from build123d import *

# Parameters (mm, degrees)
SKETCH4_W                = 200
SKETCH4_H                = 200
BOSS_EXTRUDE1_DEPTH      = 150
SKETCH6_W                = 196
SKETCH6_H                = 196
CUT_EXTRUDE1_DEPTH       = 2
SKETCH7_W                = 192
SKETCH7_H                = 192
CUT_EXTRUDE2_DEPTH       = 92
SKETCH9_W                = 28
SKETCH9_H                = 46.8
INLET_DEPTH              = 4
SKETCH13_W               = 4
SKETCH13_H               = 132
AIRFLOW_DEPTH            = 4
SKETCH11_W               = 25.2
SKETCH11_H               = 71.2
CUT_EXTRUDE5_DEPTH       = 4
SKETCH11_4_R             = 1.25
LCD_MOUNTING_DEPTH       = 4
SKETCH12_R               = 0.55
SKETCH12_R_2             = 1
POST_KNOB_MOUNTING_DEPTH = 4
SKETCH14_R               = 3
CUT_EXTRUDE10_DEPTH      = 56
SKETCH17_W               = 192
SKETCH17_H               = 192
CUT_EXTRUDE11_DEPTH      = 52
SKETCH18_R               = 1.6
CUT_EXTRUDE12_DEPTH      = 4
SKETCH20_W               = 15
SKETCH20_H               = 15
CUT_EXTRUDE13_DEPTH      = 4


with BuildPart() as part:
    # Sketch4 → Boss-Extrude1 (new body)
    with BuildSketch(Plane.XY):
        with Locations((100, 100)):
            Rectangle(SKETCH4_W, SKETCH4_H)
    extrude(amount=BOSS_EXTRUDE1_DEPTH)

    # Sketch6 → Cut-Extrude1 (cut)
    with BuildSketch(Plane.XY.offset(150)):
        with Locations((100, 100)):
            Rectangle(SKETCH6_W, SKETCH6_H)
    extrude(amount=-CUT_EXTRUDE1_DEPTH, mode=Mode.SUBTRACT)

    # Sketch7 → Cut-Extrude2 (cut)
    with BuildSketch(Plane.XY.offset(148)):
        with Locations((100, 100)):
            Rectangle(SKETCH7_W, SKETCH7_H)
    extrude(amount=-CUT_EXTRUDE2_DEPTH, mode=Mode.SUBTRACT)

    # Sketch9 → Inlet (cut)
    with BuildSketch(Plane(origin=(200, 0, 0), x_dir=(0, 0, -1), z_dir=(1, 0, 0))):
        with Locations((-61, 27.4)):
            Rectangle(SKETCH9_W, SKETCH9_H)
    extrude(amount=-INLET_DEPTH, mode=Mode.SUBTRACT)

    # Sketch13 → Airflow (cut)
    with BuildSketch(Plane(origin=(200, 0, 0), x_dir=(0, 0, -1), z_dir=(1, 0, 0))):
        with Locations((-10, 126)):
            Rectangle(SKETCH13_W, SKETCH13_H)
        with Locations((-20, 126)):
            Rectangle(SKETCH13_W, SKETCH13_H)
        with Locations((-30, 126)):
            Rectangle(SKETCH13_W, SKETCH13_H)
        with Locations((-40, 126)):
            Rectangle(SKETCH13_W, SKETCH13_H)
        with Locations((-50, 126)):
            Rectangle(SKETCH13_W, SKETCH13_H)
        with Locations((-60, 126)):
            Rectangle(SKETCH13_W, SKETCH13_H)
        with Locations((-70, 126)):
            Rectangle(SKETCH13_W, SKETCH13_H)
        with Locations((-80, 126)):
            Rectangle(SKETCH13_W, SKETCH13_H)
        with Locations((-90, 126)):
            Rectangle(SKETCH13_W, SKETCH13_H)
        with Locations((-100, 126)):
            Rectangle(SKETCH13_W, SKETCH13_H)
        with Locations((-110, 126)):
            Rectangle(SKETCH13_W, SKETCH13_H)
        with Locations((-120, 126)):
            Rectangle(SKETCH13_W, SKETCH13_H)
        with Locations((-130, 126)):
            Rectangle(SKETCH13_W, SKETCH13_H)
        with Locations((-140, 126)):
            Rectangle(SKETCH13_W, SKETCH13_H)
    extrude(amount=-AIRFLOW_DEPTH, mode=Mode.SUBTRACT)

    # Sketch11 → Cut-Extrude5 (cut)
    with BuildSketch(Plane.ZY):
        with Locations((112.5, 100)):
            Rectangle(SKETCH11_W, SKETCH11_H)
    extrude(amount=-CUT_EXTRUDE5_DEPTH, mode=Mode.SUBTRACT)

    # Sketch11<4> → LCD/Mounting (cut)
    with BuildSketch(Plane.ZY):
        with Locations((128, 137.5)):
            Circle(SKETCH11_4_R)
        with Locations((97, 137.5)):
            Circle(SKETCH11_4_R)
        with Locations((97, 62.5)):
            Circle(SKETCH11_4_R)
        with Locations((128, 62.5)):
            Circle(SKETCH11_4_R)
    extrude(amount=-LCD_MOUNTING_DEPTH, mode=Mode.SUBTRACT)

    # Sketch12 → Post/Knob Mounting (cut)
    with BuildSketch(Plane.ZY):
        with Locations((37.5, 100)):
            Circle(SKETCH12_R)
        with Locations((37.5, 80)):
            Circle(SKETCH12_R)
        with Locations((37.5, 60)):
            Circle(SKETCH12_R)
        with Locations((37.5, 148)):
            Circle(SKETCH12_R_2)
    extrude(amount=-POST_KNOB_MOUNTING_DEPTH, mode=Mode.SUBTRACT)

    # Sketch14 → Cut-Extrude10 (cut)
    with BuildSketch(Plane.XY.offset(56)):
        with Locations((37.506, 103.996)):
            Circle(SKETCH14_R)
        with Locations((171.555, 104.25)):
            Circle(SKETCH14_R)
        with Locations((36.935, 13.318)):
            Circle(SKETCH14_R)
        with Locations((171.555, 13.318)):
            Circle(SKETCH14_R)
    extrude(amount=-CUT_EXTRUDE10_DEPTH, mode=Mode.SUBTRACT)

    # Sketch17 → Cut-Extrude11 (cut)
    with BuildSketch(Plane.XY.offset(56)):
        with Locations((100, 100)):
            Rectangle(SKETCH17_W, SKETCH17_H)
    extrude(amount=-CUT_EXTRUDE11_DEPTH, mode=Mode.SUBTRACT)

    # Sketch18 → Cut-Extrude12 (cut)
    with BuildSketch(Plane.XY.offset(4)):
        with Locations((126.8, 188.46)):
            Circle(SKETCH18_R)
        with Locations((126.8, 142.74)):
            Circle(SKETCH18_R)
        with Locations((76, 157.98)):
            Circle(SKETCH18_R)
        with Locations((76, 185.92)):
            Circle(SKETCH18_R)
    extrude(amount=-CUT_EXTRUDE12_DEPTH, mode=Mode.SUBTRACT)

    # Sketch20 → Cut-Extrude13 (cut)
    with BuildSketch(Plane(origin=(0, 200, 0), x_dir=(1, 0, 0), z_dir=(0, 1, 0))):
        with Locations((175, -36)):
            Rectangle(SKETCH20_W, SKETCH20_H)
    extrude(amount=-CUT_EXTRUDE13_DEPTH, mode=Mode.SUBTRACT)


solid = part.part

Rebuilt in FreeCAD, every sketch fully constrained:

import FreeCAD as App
import Part
import Sketcher

V = App.Vector
Q = App.Units.Quantity


def add_polygon(sketch, points):
    """Adds a closed chain of lines whose ends are joined by coincident constraints."""
    first, n = sketch.GeometryCount, len(points)
    for a, b in zip(points, points[1:] + points[:1]):
        sketch.addGeometry(Part.LineSegment(App.Vector(*a, 0), App.Vector(*b, 0)), False)
    for i in range(n):
        sketch.addConstraint(Sketcher.Constraint("Coincident", first + i, 2, first + (i + 1) % n, 1))

doc = App.newDocument("Part")
body = doc.addObject("PartDesign::Body", "Body")

# Sketch on XY plane
sketch1 = body.newObject("Sketcher::SketchObject", "Sketch")
sketch1.AttachmentSupport = (doc.getObject("XY_Plane"), [""])
sketch1.MapMode = "FlatFace"
add_polygon(sketch1, [(0, 200), (0, 0), (200, 0), (200, 200)])  # lines 0-3
sketch1.addConstraint([
    Sketcher.Constraint("Vertical", 0),
    Sketcher.Constraint("Horizontal", 1),
    Sketcher.Constraint("Vertical", 2),
    Sketcher.Constraint("Horizontal", 3),
    Sketcher.Constraint("Coincident", 0, 2, -1, 1),
    Sketcher.Constraint("Equal", 3, 0),
    Sketcher.Constraint("DistanceX", 1, 1, 1, 2, Q("200 mm")),
])
pad1 = body.newObject("PartDesign::Pad", "Pad")
pad1.Profile = sketch1
pad1.Length = 150

# Sketch on XY plane
sketch2 = body.newObject("Sketcher::SketchObject", "Sketch001")
sketch2.AttachmentSupport = (doc.getObject("XY_Plane"), [""])
sketch2.MapMode = "FlatFace"
sketch2.AttachmentOffset = App.Placement(V(0, 0, 150), App.Rotation())
add_polygon(sketch2, [(2, 198), (2, 2), (198, 2), (198, 198)])  # lines 0-3
sketch2.addConstraint([
    Sketcher.Constraint("Vertical", 0),
    Sketcher.Constraint("Horizontal", 1),
    Sketcher.Constraint("Vertical", 2),
    Sketcher.Constraint("Horizontal", 3),
    Sketcher.Constraint("Equal", 3, 0),
    Sketcher.Constraint("DistanceX", 1, 1, 1, 2, Q("196 mm")),
    Sketcher.Constraint("DistanceX", -1, 1, 0, 2, Q("2 mm")),
    Sketcher.Constraint("DistanceY", -1, 1, 0, 2, Q("2 mm")),
])
pocket1 = body.newObject("PartDesign::Pocket", "Pocket")
pocket1.Profile = sketch2
pocket1.Length = 2

# Sketch on XY plane
sketch3 = body.newObject("Sketcher::SketchObject", "Sketch002")
sketch3.AttachmentSupport = (doc.getObject("XY_Plane"), [""])
sketch3.MapMode = "FlatFace"
sketch3.AttachmentOffset = App.Placement(V(0, 0, 148), App.Rotation())
add_polygon(sketch3, [(4, 196), (4, 4), (196, 4), (196, 196)])  # lines 0-3
sketch3.addConstraint([
    Sketcher.Constraint("Vertical", 0),
    Sketcher.Constraint("Horizontal", 1),
    Sketcher.Constraint("Vertical", 2),
    Sketcher.Constraint("Horizontal", 3),
    Sketcher.Constraint("Equal", 3, 0),
    Sketcher.Constraint("DistanceX", 1, 1, 1, 2, Q("192 mm")),
    Sketcher.Constraint("DistanceX", -1, 1, 0, 2, Q("4 mm")),
    Sketcher.Constraint("DistanceY", -1, 1, 0, 2, Q("4 mm")),
])
pocket2 = body.newObject("PartDesign::Pocket", "Pocket001")
pocket2.Profile = sketch3
pocket2.Length = 92

# Sketch on YZ plane
sketch4 = body.newObject("Sketcher::SketchObject", "Sketch003")
sketch4.AttachmentSupport = (doc.getObject("YZ_Plane"), [""])
sketch4.MapMode = "FlatFace"
sketch4.AttachmentOffset = App.Placement(V(0, 0, 200), App.Rotation())
add_polygon(sketch4, [(50.8, 75), (4, 75), (4, 47), (50.8, 47)])  # lines 0-3
sketch4.addConstraint([
    Sketcher.Constraint("Horizontal", 0),
    Sketcher.Constraint("Vertical", 1),
    Sketcher.Constraint("Horizontal", 2),
    Sketcher.Constraint("Vertical", 3),
    Sketcher.Constraint("DistanceY", 1, 2, 1, 1, Q("28 mm")),
    Sketcher.Constraint("DistanceX", 0, 2, 0, 1, Q("46.8 mm")),
    Sketcher.Constraint("DistanceX", -1, 1, 0, 2, Q("4 mm")),
    Sketcher.Constraint("DistanceY", -1, 1, 0, 2, Q("75 mm")),
])
pocket3 = body.newObject("PartDesign::Pocket", "Pocket002")
pocket3.Profile = sketch4
pocket3.Length = 4

# Sketch on YZ plane
sketch5 = body.newObject("Sketcher::SketchObject", "Sketch004")
sketch5.AttachmentSupport = (doc.getObject("YZ_Plane"), [""])
sketch5.MapMode = "FlatFace"
sketch5.AttachmentOffset = App.Placement(V(0, 0, 200), App.Rotation())
add_polygon(sketch5, [(192, 12), (60, 12), (60, 8), (192, 8)])  # lines 0-3
add_polygon(sketch5, [(192, 22), (60, 22), (60, 18), (192, 18)])  # lines 4-7
add_polygon(sketch5, [(192, 32), (60, 32), (60, 28), (192, 28)])  # lines 8-11
add_polygon(sketch5, [(192, 42), (60, 42), (60, 38), (192, 38)])  # lines 12-15
add_polygon(sketch5, [(192, 52), (60, 52), (60, 48), (192, 48)])  # lines 16-19
add_polygon(sketch5, [(192, 62), (60, 62), (60, 58), (192, 58)])  # lines 20-23
add_polygon(sketch5, [(192, 72), (60, 72), (60, 68), (192, 68)])  # lines 24-27
add_polygon(sketch5, [(192, 82), (60, 82), (60, 78), (192, 78)])  # lines 28-31
add_polygon(sketch5, [(192, 92), (60, 92), (60, 88), (192, 88)])  # lines 32-35
add_polygon(sketch5, [(192, 102), (60, 102), (60, 98), (192, 98)])  # lines 36-39
add_polygon(sketch5, [(192, 112), (60, 112), (60, 108), (192, 108)])  # lines 40-43
add_polygon(sketch5, [(192, 122), (60, 122), (60, 118), (192, 118)])  # lines 44-47
add_polygon(sketch5, [(192, 132), (60, 132), (60, 128), (192, 128)])  # lines 48-51
add_polygon(sketch5, [(192, 142), (60, 142), (60, 138), (192, 138)])  # lines 52-55
sketch5.addConstraint([
    Sketcher.Constraint("Horizontal", 0),
    Sketcher.Constraint("Vertical", 1),
    Sketcher.Constraint("Horizontal", 2),
    Sketcher.Constraint("Vertical", 3),
    Sketcher.Constraint("Horizontal", 4),
    Sketcher.Constraint("Vertical", 5),
    Sketcher.Constraint("Horizontal", 6),
    Sketcher.Constraint("Vertical", 7),
    Sketcher.Constraint("Horizontal", 8),
    Sketcher.Constraint("Vertical", 9),
    Sketcher.Constraint("Horizontal", 10),
    Sketcher.Constraint("Vertical", 11),
    Sketcher.Constraint("Horizontal", 12),
    Sketcher.Constraint("Vertical", 13),
    Sketcher.Constraint("Horizontal", 14),
    Sketcher.Constraint("Vertical", 15),
    Sketcher.Constraint("Horizontal", 16),
    Sketcher.Constraint("Vertical", 17),
    Sketcher.Constraint("Horizontal", 18),
    Sketcher.Constraint("Vertical", 19),
    Sketcher.Constraint("Horizontal", 20),
    Sketcher.Constraint("Vertical", 21),
    Sketcher.Constraint("Horizontal", 22),
    Sketcher.Constraint("Vertical", 23),
    Sketcher.Constraint("Horizontal", 24),
    Sketcher.Constraint("Vertical", 25),
    Sketcher.Constraint("Horizontal", 26),
    Sketcher.Constraint("Vertical", 27),
    Sketcher.Constraint("Horizontal", 28),
    Sketcher.Constraint("Vertical", 29),
    Sketcher.Constraint("Horizontal", 30),
    Sketcher.Constraint("Vertical", 31),
    Sketcher.Constraint("Horizontal", 32),
    Sketcher.Constraint("Vertical", 33),
    Sketcher.Constraint("Horizontal", 34),
    Sketcher.Constraint("Vertical", 35),
    Sketcher.Constraint("Horizontal", 36),
    Sketcher.Constraint("Vertical", 37),
    Sketcher.Constraint("Horizontal", 38),
    Sketcher.Constraint("Vertical", 39),
    Sketcher.Constraint("Horizontal", 40),
    Sketcher.Constraint("Vertical", 41),
    Sketcher.Constraint("Horizontal", 42),
    Sketcher.Constraint("Vertical", 43),
    Sketcher.Constraint("Horizontal", 44),
    Sketcher.Constraint("Vertical", 45),
    Sketcher.Constraint("Horizontal", 46),
    Sketcher.Constraint("Vertical", 47),
    Sketcher.Constraint("Horizontal", 48),
    Sketcher.Constraint("Vertical", 49),
    Sketcher.Constraint("Horizontal", 50),
    Sketcher.Constraint("Vertical", 51),
    Sketcher.Constraint("Horizontal", 52),
    Sketcher.Constraint("Vertical", 53),
    Sketcher.Constraint("Horizontal", 54),
    Sketcher.Constraint("Vertical", 55),
    Sketcher.Constraint("Vertical", 1, 2, 4, 2),
    Sketcher.Constraint("Vertical", 3, 2, 6, 2),
    Sketcher.Constraint("Vertical", 5, 2, 8, 2),
    Sketcher.Constraint("Vertical", 7, 2, 10, 2),
    Sketcher.Constraint("Vertical", 9, 2, 12, 2),
    Sketcher.Constraint("Vertical", 11, 2, 14, 2),
    Sketcher.Constraint("Vertical", 13, 2, 16, 2),
    Sketcher.Constraint("Vertical", 15, 2, 18, 2),
    Sketcher.Constraint("Vertical", 17, 2, 20, 2),
    Sketcher.Constraint("Vertical", 19, 2, 22, 2),
    Sketcher.Constraint("Vertical", 21, 2, 24, 2),
    Sketcher.Constraint("Vertical", 23, 2, 26, 2),
    Sketcher.Constraint("Vertical", 25, 2, 28, 2),
    Sketcher.Constraint("Vertical", 27, 2, 30, 2),
    Sketcher.Constraint("Vertical", 29, 2, 32, 2),
    Sketcher.Constraint("Vertical", 31, 2, 34, 2),
    Sketcher.Constraint("Vertical", 33, 2, 36, 2),
    Sketcher.Constraint("Vertical", 35, 2, 38, 2),
    Sketcher.Constraint("Vertical", 37, 2, 40, 2),
    Sketcher.Constraint("Vertical", 39, 2, 42, 2),
    Sketcher.Constraint("Vertical", 41, 2, 44, 2),
    Sketcher.Constraint("Vertical", 43, 2, 46, 2),
    Sketcher.Constraint("Vertical", 45, 2, 48, 2),
    Sketcher.Constraint("Vertical", 47, 2, 50, 2),
    Sketcher.Constraint("Vertical", 49, 2, 52, 2),
    Sketcher.Constraint("Vertical", 51, 2, 54, 2),
    Sketcher.Constraint("Equal", 3, 5),
    Sketcher.Constraint("Equal", 7, 9),
    Sketcher.Constraint("Equal", 11, 13),
    Sketcher.Constraint("Equal", 15, 17),
    Sketcher.Constraint("Equal", 19, 21),
    Sketcher.Constraint("Equal", 23, 25),
    Sketcher.Constraint("Equal", 27, 29),
    Sketcher.Constraint("Equal", 31, 33),
    Sketcher.Constraint("Equal", 35, 37),
    Sketcher.Constraint("Equal", 39, 41),
    Sketcher.Constraint("Equal", 43, 45),
    Sketcher.Constraint("Equal", 47, 49),
    Sketcher.Constraint("Equal", 51, 53),
    Sketcher.Constraint("DistanceX", 0, 2, 0, 1, Q("132 mm")),
    Sketcher.Constraint("DistanceY", 1, 2, 1, 1, Q("4 mm")),
    Sketcher.Constraint("DistanceX", -1, 1, 0, 2, Q("60 mm")),
    Sketcher.Constraint("DistanceY", -1, 1, 0, 2, Q("12 mm")),
    Sketcher.Constraint("DistanceY", -1, 1, 4, 2, Q("22 mm")),
    Sketcher.Constraint("DistanceY", -1, 1, 8, 2, Q("32 mm")),
    Sketcher.Constraint("DistanceY", -1, 1, 12, 2, Q("42 mm")),
    Sketcher.Constraint("DistanceY", -1, 1, 16, 2, Q("52 mm")),
    Sketcher.Constraint("DistanceY", -1, 1, 20, 2, Q("62 mm")),
    Sketcher.Constraint("DistanceY", -1, 1, 24, 2, Q("72 mm")),
    Sketcher.Constraint("DistanceY", -1, 1, 28, 2, Q("82 mm")),
    Sketcher.Constraint("DistanceY", -1, 1, 32, 2, Q("92 mm")),
    Sketcher.Constraint("DistanceY", -1, 1, 36, 2, Q("102 mm")),
    Sketcher.Constraint("DistanceY", -1, 1, 40, 2, Q("112 mm")),
    Sketcher.Constraint("DistanceY", -1, 1, 44, 2, Q("122 mm")),
    Sketcher.Constraint("DistanceY", -1, 1, 48, 2, Q("132 mm")),
    Sketcher.Constraint("DistanceY", -1, 1, 52, 2, Q("142 mm")),
])
pocket4 = body.newObject("PartDesign::Pocket", "Pocket003")
pocket4.Profile = sketch5
pocket4.Length = 4

# Sketch on YZ plane
sketch6 = body.newObject("Sketcher::SketchObject", "Sketch005")
sketch6.AttachmentSupport = (doc.getObject("YZ_Plane"), [""])
sketch6.MapMode = "FlatFace"
add_polygon(sketch6, [(135.6, 99.9), (64.4, 99.9), (64.4, 125.1), (135.6, 125.1)])  # lines 0-3
sketch6.addConstraint([
    Sketcher.Constraint("Horizontal", 0),
    Sketcher.Constraint("Vertical", 1),
    Sketcher.Constraint("Horizontal", 2),
    Sketcher.Constraint("Vertical", 3),
    Sketcher.Constraint("DistanceX", 0, 2, 0, 1, Q("71.2 mm")),
    Sketcher.Constraint("DistanceY", 1, 1, 1, 2, Q("25.2 mm")),
    Sketcher.Constraint("DistanceX", -1, 1, 0, 2, Q("64.4 mm")),
    Sketcher.Constraint("DistanceY", -1, 1, 0, 2, Q("99.9 mm")),
])
pocket5 = body.newObject("PartDesign::Pocket", "Pocket004")
pocket5.Profile = sketch6
pocket5.Length = 4
pocket5.Reversed = True

# Sketch on YZ plane
sketch7 = body.newObject("Sketcher::SketchObject", "Sketch006")
sketch7.AttachmentSupport = (doc.getObject("YZ_Plane"), [""])
sketch7.MapMode = "FlatFace"
sketch7.addGeometry([
    Part.Circle(V(137.5, 128, 0), V(0, 0, 1), 1.25),
    Part.Circle(V(137.5, 97, 0), V(0, 0, 1), 1.25),
    Part.Circle(V(62.5, 97, 0), V(0, 0, 1), 1.25),
    Part.Circle(V(62.5, 128, 0), V(0, 0, 1), 1.25),
], False)
sketch7.addConstraint([
    Sketcher.Constraint("Equal", 0, 1),
    Sketcher.Constraint("Equal", 1, 2),
    Sketcher.Constraint("Equal", 2, 3),
    Sketcher.Constraint("Horizontal", 1, 3, 2, 3),
    Sketcher.Constraint("Horizontal", 0, 3, 3, 3),
    Sketcher.Constraint("Vertical", 0, 3, 1, 3),
    Sketcher.Constraint("Vertical", 2, 3, 3, 3),
    Sketcher.Constraint("Diameter", 0, Q("2.5 mm")),
    Sketcher.Constraint("DistanceY", -1, 1, 0, 3, Q("128 mm")),
    Sketcher.Constraint("DistanceY", -1, 1, 1, 3, Q("97 mm")),
    Sketcher.Constraint("DistanceX", 2, 3, 1, 3, Q("75 mm")),
    Sketcher.Constraint("DistanceX", -1, 1, 0, 3, Q("137.5 mm")),
])
pocket6 = body.newObject("PartDesign::Pocket", "Pocket005")
pocket6.Profile = sketch7
pocket6.Length = 4
pocket6.Reversed = True

# Sketch on YZ plane
sketch8 = body.newObject("Sketcher::SketchObject", "Sketch007")
sketch8.AttachmentSupport = (doc.getObject("YZ_Plane"), [""])
sketch8.MapMode = "FlatFace"
sketch8.addGeometry([
    Part.Circle(V(100, 37.5, 0), V(0, 0, 1), 0.55),
    Part.Circle(V(80, 37.5, 0), V(0, 0, 1), 0.55),
    Part.Circle(V(60, 37.5, 0), V(0, 0, 1), 0.55),
    Part.Circle(V(148, 37.5, 0), V(0, 0, 1), 1),
], False)
sketch8.addConstraint([
    Sketcher.Constraint("Equal", 0, 1),
    Sketcher.Constraint("Equal", 1, 2),
    Sketcher.Constraint("Horizontal", 0, 3, 1, 3),
    Sketcher.Constraint("Horizontal", 1, 3, 2, 3),
    Sketcher.Constraint("Horizontal", 2, 3, 3, 3),
    Sketcher.Constraint("Diameter", 3, Q("2 mm")),
    Sketcher.Constraint("Diameter", 0, Q("1.1 mm")),
    Sketcher.Constraint("DistanceX", -1, 1, 0, 3, Q("100 mm")),
    Sketcher.Constraint("DistanceX", -1, 1, 1, 3, Q("80 mm")),
    Sketcher.Constraint("DistanceX", -1, 1, 2, 3, Q("60 mm")),
    Sketcher.Constraint("DistanceX", -1, 1, 3, 3, Q("148 mm")),
    Sketcher.Constraint("DistanceY", -1, 1, 0, 3, Q("37.5 mm")),
])
pocket7 = body.newObject("PartDesign::Pocket", "Pocket006")
pocket7.Profile = sketch8
pocket7.Length = 4
pocket7.Reversed = True

# Sketch on XY plane
sketch9 = body.newObject("Sketcher::SketchObject", "Sketch008")
sketch9.AttachmentSupport = (doc.getObject("XY_Plane"), [""])
sketch9.MapMode = "FlatFace"
sketch9.AttachmentOffset = App.Placement(V(0, 0, 56), App.Rotation())
sketch9.addGeometry([
    Part.Circle(V(37.506, 103.996, 0), V(0, 0, 1), 3),
    Part.Circle(V(171.555, 104.25, 0), V(0, 0, 1), 3),
    Part.Circle(V(36.935, 13.318, 0), V(0, 0, 1), 3),
    Part.Circle(V(171.555, 13.318, 0), V(0, 0, 1), 3),
], False)
sketch9.addConstraint([
    Sketcher.Constraint("Equal", 0, 1),
    Sketcher.Constraint("Equal", 1, 2),
    Sketcher.Constraint("Equal", 2, 3),
    Sketcher.Constraint("Horizontal", 2, 3, 3, 3),
    Sketcher.Constraint("Vertical", 1, 3, 3, 3),
    Sketcher.Constraint("Diameter", 0, Q("6 mm")),
    Sketcher.Constraint("DistanceY", -1, 1, 1, 3, Q("104.25 mm")),
    Sketcher.Constraint("DistanceX", 2, 3, 1, 3, Q("134.62 mm")),
    Sketcher.Constraint("DistanceX", -1, 1, 0, 3, Q("37.506 mm")),
    Sketcher.Constraint("DistanceY", -1, 1, 0, 3, Q("103.996 mm")),
    Sketcher.Constraint("DistanceX", -1, 1, 1, 3, Q("171.555 mm")),
    Sketcher.Constraint("DistanceY", -1, 1, 2, 3, Q("13.318 mm")),
])
pocket8 = body.newObject("PartDesign::Pocket", "Pocket007")
pocket8.Profile = sketch9
pocket8.Length = 56

# Sketch on XY plane
sketch10 = body.newObject("Sketcher::SketchObject", "Sketch009")
sketch10.AttachmentSupport = (doc.getObject("XY_Plane"), [""])
sketch10.MapMode = "FlatFace"
sketch10.AttachmentOffset = App.Placement(V(0, 0, 56), App.Rotation())
add_polygon(sketch10, [(4, 196), (4, 4), (196, 4), (196, 196)])  # lines 0-3
sketch10.addConstraint([
    Sketcher.Constraint("Vertical", 0),
    Sketcher.Constraint("Horizontal", 1),
    Sketcher.Constraint("Vertical", 2),
    Sketcher.Constraint("Horizontal", 3),
    Sketcher.Constraint("Equal", 3, 0),
    Sketcher.Constraint("DistanceX", 1, 1, 1, 2, Q("192 mm")),
    Sketcher.Constraint("DistanceX", -1, 1, 0, 2, Q("4 mm")),
    Sketcher.Constraint("DistanceY", -1, 1, 0, 2, Q("4 mm")),
])
pocket9 = body.newObject("PartDesign::Pocket", "Pocket008")
pocket9.Profile = sketch10
pocket9.Length = 52

# Sketch on XY plane
sketch11 = body.newObject("Sketcher::SketchObject", "Sketch010")
sketch11.AttachmentSupport = (doc.getObject("XY_Plane"), [""])
sketch11.MapMode = "FlatFace"
sketch11.AttachmentOffset = App.Placement(V(0, 0, 4), App.Rotation())
sketch11.addGeometry([
    Part.Circle(V(126.8, 188.46, 0), V(0, 0, 1), 1.6),
    Part.Circle(V(126.8, 142.74, 0), V(0, 0, 1), 1.6),
    Part.Circle(V(76, 157.98, 0), V(0, 0, 1), 1.6),
    Part.Circle(V(76, 185.92, 0), V(0, 0, 1), 1.6),
], False)
sketch11.addConstraint([
    Sketcher.Constraint("Equal", 0, 1),
    Sketcher.Constraint("Equal", 1, 2),
    Sketcher.Constraint("Equal", 2, 3),
    Sketcher.Constraint("Vertical", 0, 3, 1, 3),
    Sketcher.Constraint("Vertical", 2, 3, 3, 3),
    Sketcher.Constraint("Diameter", 0, Q("3.2 mm")),
    Sketcher.Constraint("DistanceX", -1, 1, 2, 3, Q("76 mm")),
    Sketcher.Constraint("DistanceX", -1, 1, 0, 3, Q("126.8 mm")),
    Sketcher.Constraint("DistanceY", -1, 1, 0, 3, Q("188.46 mm")),
    Sketcher.Constraint("DistanceY", -1, 1, 1, 3, Q("142.74 mm")),
    Sketcher.Constraint("DistanceY", -1, 1, 2, 3, Q("157.98 mm")),
    Sketcher.Constraint("DistanceY", -1, 1, 3, 3, Q("185.92 mm")),
])
pocket10 = body.newObject("PartDesign::Pocket", "Pocket009")
pocket10.Profile = sketch11
pocket10.Length = 4

# Sketch on XZ plane
sketch12 = body.newObject("Sketcher::SketchObject", "Sketch011")
sketch12.AttachmentSupport = (doc.getObject("XZ_Plane"), [""])
sketch12.MapMode = "FlatFace"
sketch12.AttachmentOffset = App.Placement(V(0, 0, -200), App.Rotation())
add_polygon(sketch12, [(167.5, 28.5), (167.5, 43.5), (182.5, 43.5), (182.5, 28.5)])  # lines 0-3
sketch12.addConstraint([
    Sketcher.Constraint("Vertical", 0),
    Sketcher.Constraint("Horizontal", 1),
    Sketcher.Constraint("Vertical", 2),
    Sketcher.Constraint("Horizontal", 3),
    Sketcher.Constraint("Equal", 3, 0),
    Sketcher.Constraint("DistanceX", 1, 1, 1, 2, Q("15 mm")),
    Sketcher.Constraint("DistanceX", -1, 1, 0, 2, Q("167.5 mm")),
    Sketcher.Constraint("DistanceY", -1, 1, 0, 2, Q("43.5 mm")),
])
pocket11 = body.newObject("PartDesign::Pocket", "Pocket010")
pocket11.Profile = sketch12
pocket11.Length = 4
pocket11.Reversed = True

doc.recompute()
